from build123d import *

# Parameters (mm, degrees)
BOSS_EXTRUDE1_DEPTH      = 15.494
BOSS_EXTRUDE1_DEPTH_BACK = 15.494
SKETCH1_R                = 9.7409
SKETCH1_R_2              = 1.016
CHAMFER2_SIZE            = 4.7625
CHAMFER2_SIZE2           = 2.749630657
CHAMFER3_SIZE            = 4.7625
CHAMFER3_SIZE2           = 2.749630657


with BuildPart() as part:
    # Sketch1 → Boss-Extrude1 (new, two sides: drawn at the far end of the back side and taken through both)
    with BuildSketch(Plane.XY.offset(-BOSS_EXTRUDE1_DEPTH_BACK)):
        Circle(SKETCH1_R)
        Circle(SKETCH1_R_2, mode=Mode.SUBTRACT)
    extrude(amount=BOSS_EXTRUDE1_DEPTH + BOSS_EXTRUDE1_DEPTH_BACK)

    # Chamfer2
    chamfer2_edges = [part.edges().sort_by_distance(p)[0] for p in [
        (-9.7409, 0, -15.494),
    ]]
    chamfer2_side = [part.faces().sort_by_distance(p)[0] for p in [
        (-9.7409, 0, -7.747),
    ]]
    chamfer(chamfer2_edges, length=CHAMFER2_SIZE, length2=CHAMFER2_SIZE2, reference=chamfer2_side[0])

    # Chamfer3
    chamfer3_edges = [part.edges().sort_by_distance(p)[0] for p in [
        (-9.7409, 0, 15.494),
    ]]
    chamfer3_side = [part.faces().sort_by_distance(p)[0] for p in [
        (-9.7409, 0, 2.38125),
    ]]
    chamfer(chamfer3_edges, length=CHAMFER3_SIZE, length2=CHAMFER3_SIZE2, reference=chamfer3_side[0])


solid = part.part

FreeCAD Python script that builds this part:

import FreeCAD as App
import Part
import Sketcher
Q = App.Units.Quantity


def edges_at(feature, points):
    """Names of the edges that pass closest to the given points."""
    edges = feature.Shape.Edges
    near = lambda p: min(range(len(edges)), key=lambda i: edges[i].distToShape(Part.Vertex(*p))[0])
    return sorted({f"Edge{near(p) + 1}" for p in points})

doc = App.newDocument("Part")
body = doc.addObject("PartDesign::Body", "Body")

# Sketch on XY plane
sketch1 = doc.addObject("Sketcher::SketchObject", "Sketch")
body.addObject(sketch1)
sketch1.AttachmentSupport = (doc.XY_Plane, [""])
sketch1.MapMode = "FlatFace"
sketch1.addGeometry(Part.Circle(App.Vector(0, 0, 0), App.Vector(0, 0, 1), 9.7409), False)
sketch1.addGeometry(Part.Circle(App.Vector(0, 0, 0), App.Vector(0, 0, 1), 1.016), False)
sketch1.addConstraint(Sketcher.Constraint("Coincident", 0, 3, -1, 1))
sketch1.addConstraint(Sketcher.Constraint("Coincident", 1, 3, -1, 1))
sketch1.addConstraint(Sketcher.Constraint("Diameter", 1, Q("0.08 in")))
sketch1.addConstraint(Sketcher.Constraint("Diameter", 0, Q("0.767 in")))
pad1 = doc.addObject("PartDesign::Pad", "Pad")
body.addObject(pad1)
pad1.Profile = sketch1
pad1.Type = "TwoLengths"
pad1.Length = Q("0.61 in")
pad1.Length2 = Q("0.61 in")
doc.recompute()

chamfer = doc.addObject("PartDesign::Chamfer", "Chamfer")
body.addObject(chamfer)
chamfer.Base = (pad1, edges_at(pad1, [(-9.741, 0, -15.494)]))
chamfer.ChamferType = "Two distances"
chamfer.Size = Q("0.1875 in")
chamfer.Size2 = 2.749631
doc.recompute()

chamfer2 = doc.addObject("PartDesign::Chamfer", "Chamfer001")
body.addObject(chamfer2)
chamfer2.Base = (chamfer, edges_at(chamfer, [(-9.741, 0, 15.494)]))
chamfer2.ChamferType = "Two distances"
chamfer2.Size = Q("0.1875 in")
chamfer2.Size2 = 2.749631

doc.recompute()
